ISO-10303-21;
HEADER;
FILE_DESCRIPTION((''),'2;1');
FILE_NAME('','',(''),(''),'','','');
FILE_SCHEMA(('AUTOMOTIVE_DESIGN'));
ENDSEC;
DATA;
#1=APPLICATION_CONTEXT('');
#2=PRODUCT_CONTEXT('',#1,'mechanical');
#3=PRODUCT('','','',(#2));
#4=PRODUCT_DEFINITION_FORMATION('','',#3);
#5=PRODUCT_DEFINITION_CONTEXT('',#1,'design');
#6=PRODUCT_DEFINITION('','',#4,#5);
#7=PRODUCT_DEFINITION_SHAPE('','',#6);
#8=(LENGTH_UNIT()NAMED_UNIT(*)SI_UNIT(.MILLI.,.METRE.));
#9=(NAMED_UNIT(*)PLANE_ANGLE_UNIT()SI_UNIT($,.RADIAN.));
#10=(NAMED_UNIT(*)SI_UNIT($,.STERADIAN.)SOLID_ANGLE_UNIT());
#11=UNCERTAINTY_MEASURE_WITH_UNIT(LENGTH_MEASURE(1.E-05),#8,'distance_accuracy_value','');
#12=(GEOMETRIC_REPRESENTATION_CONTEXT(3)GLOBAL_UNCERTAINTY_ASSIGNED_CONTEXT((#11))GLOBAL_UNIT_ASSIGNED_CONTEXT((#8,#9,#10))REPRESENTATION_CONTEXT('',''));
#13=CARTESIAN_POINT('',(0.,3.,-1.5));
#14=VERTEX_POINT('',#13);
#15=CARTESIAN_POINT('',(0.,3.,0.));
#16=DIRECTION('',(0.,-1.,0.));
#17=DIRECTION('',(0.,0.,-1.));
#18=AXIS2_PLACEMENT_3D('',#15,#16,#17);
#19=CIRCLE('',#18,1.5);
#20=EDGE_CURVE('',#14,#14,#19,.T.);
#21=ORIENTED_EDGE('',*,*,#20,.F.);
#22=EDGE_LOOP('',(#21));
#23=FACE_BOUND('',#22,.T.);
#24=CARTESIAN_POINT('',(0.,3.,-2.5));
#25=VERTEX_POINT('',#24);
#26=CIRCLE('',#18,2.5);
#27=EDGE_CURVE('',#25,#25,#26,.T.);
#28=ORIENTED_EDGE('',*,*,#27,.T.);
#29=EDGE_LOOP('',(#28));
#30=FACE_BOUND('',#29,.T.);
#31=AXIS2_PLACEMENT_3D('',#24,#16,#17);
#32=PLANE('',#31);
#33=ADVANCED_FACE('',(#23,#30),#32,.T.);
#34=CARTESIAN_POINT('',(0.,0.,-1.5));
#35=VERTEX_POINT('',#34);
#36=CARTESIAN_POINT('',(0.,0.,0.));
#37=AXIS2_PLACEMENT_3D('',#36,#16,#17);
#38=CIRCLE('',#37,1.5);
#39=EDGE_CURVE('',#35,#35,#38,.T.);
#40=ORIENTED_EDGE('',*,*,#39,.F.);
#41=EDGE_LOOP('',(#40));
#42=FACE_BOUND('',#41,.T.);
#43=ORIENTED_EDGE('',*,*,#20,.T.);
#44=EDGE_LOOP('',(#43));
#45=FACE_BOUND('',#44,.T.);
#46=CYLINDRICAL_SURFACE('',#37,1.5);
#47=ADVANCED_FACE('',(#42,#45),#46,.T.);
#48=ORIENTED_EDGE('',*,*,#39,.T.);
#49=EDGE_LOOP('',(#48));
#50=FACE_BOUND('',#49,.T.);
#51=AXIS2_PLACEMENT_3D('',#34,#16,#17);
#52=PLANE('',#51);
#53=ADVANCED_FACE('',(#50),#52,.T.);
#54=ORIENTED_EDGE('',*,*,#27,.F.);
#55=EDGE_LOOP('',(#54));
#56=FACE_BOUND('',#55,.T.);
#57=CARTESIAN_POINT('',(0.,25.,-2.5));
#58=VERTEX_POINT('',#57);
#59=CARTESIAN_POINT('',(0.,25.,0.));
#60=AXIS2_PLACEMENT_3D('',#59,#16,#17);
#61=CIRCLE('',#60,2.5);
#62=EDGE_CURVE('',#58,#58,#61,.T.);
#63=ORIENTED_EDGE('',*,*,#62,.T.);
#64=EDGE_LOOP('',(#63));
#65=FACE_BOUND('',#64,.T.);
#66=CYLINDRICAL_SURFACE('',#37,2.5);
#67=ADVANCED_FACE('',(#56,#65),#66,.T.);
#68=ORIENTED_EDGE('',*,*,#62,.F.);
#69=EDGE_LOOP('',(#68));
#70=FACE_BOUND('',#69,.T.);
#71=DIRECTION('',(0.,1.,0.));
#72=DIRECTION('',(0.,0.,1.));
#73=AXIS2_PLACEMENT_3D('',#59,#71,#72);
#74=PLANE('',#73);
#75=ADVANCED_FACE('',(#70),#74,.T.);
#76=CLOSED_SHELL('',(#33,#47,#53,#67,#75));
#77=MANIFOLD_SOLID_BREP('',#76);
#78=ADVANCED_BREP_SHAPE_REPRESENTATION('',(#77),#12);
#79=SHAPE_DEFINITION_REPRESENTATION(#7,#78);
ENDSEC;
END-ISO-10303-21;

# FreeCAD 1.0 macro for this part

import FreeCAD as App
import Part
import Sketcher
from FreeCAD import Vector

doc = App.newDocument("Part")
body = doc.addObject("PartDesign::Body", "Body")

# Sketch on YZ plane
sketch1 = body.newObject("Sketcher::SketchObject", "Sketch")
sketch1.AttachmentSupport = (doc.getObject("YZ_Plane"), [""])
sketch1.MapMode = "FlatFace"
sketch1.addGeometry([
    Part.LineSegment(Vector(25, 0, 0), Vector(0, 0, 0)),  # 0
    Part.LineSegment(Vector(0, 0, 0), Vector(0, -1.5, 0)),  # 1
    Part.LineSegment(Vector(0, -1.5, 0), Vector(3, -1.5, 0)),  # 2
    Part.LineSegment(Vector(3, -1.5, 0), Vector(3, -2.5, 0)),  # 3
    Part.LineSegment(Vector(3, -2.5, 0), Vector(25, -2.5, 0)),  # 4
    Part.LineSegment(Vector(25, -2.5, 0), Vector(25, 0, 0)),  # 5
], False)
sketch1.addConstraint([
    Sketcher.Constraint("Coincident", 0, 2, 1, 1),
    Sketcher.Constraint("Coincident", 1, 2, 2, 1),
    Sketcher.Constraint("Coincident", 2, 2, 3, 1),
    Sketcher.Constraint("Coincident", 3, 2, 4, 1),
    Sketcher.Constraint("Coincident", 4, 2, 5, 1),
    Sketcher.Constraint("Coincident", 5, 2, 0, 1),
    Sketcher.Constraint("Horizontal", 0),
    Sketcher.Constraint("Vertical", 1),
    Sketcher.Constraint("Horizontal", 2),
    Sketcher.Constraint("Vertical", 3),
    Sketcher.Constraint("Horizontal", 4),
    Sketcher.Constraint("Vertical", 5),
    Sketcher.Constraint("Coincident", 0, 2, -1, 1),
    Sketcher.Constraint("DistanceX", 0, 2, 0, 1, 25.0),
    Sketcher.Constraint("DistanceX", 2, 1, 2, 2, 3.0),
    Sketcher.Constraint("DistanceY", 3, 2, 3, 1, 1.0),
    Sketcher.Constraint("DistanceY", 1, 2, 1, 1, 1.5),
])
revolution = body.newObject("PartDesign::Revolution", "Revolution")
revolution.Profile = sketch1
revolution.ReferenceAxis = (sketch1, ["H_Axis"])
revolution.Angle = 360

doc.recompute()
